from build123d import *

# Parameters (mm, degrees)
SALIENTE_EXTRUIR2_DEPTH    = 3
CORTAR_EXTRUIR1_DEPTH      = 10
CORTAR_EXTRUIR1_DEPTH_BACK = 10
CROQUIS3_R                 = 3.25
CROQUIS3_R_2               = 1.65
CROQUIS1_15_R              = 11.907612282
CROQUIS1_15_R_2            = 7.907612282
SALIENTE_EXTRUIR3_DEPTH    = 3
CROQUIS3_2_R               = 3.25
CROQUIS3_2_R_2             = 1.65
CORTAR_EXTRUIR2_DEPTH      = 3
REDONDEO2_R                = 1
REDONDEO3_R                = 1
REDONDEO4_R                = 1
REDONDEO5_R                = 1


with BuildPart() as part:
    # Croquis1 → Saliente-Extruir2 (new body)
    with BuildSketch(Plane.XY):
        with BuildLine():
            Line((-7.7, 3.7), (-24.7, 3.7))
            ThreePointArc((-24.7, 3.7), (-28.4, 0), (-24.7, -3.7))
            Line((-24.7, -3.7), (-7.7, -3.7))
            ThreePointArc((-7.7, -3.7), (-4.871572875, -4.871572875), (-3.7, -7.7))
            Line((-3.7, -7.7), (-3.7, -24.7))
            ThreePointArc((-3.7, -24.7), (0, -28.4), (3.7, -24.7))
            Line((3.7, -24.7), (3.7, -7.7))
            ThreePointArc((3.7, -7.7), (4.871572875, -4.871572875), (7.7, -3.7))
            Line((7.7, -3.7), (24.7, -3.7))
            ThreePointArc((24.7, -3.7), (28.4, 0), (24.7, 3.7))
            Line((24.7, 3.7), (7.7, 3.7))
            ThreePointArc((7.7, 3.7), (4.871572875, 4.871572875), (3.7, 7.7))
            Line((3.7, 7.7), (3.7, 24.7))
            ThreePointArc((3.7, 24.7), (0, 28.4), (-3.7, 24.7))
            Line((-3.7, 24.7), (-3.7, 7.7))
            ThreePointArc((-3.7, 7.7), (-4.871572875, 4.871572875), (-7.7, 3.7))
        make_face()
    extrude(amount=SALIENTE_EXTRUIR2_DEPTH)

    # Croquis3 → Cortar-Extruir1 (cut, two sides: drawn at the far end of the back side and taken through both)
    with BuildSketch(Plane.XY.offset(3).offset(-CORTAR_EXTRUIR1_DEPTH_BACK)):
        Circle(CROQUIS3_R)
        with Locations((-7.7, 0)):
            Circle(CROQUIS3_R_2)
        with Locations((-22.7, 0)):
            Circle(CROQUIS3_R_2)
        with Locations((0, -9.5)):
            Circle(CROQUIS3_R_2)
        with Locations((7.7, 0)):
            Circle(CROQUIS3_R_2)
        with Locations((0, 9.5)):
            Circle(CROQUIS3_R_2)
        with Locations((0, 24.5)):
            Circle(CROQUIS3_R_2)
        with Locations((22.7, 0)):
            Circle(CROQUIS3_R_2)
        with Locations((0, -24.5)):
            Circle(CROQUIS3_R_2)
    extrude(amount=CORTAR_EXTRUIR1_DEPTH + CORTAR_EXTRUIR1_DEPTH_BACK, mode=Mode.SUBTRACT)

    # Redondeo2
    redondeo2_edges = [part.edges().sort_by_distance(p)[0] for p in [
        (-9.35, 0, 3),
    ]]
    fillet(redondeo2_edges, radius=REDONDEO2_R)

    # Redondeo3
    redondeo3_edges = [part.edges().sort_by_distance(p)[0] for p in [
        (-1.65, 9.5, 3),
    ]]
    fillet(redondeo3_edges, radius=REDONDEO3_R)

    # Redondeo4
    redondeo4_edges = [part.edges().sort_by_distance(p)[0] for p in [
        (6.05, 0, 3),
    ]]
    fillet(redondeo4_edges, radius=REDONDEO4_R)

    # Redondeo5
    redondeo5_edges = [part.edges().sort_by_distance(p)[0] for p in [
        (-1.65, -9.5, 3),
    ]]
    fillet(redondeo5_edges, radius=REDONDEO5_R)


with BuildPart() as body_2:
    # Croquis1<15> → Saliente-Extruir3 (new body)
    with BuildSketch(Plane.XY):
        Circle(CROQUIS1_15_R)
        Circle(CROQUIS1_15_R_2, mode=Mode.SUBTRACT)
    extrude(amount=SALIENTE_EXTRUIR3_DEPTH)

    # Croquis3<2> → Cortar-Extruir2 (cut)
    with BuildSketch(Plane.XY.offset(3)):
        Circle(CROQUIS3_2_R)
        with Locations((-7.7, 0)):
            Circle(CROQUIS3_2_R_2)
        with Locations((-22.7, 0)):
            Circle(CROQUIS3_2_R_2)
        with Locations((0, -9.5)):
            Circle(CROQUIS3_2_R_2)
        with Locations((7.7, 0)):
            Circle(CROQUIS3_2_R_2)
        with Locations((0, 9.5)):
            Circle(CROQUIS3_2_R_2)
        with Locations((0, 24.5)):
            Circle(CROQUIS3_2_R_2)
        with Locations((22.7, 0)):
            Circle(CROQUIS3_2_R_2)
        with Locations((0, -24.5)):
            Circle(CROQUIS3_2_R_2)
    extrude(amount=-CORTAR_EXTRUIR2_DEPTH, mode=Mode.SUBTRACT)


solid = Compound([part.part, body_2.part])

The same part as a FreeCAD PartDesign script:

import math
import FreeCAD as App
import Part
import Sketcher
Q = App.Units.Quantity


def edges_at(feature, points):
    """Names of the edges that pass closest to the given points."""
    edges = feature.Shape.Edges
    near = lambda p: min(range(len(edges)), key=lambda i: edges[i].distToShape(Part.Vertex(*p))[0])
    return sorted({f"Edge{near(p) + 1}" for p in points})

doc = App.newDocument("Part")
body = doc.addObject("PartDesign::Body", "Body")

# Sketch on XY plane
sketch1 = doc.addObject("Sketcher::SketchObject", "Sketch")
body.addObject(sketch1)
sketch1.AttachmentSupport = (doc.XY_Plane, [""])
sketch1.MapMode = "FlatFace"
sketch1.addGeometry([
    Part.LineSegment(App.Vector(-7.7, 3.7, 0), App.Vector(-24.7, 3.7, 0)),  # 0
    Part.ArcOfCircle(Part.Circle(App.Vector(-24.7, 0, 0), App.Vector(0, 0, 1), 3.7), math.radians(90), math.radians(270)),  # 1
    Part.LineSegment(App.Vector(-24.7, -3.7, 0), App.Vector(-7.7, -3.7, 0)),  # 2
    Part.ArcOfCircle(Part.Circle(App.Vector(-7.7, -7.7, 0), App.Vector(0, 0, 1), 4), math.radians(0), math.radians(90)),  # 3
    Part.LineSegment(App.Vector(-3.7, -7.7, 0), App.Vector(-3.7, -24.7, 0)),  # 4
    Part.ArcOfCircle(Part.Circle(App.Vector(0, -24.7, 0), App.Vector(0, 0, 1), 3.7), math.radians(180), math.radians(360)),  # 5
    Part.LineSegment(App.Vector(3.7, -24.7, 0), App.Vector(3.7, -7.7, 0)),  # 6
    Part.ArcOfCircle(Part.Circle(App.Vector(7.7, -7.7, 0), App.Vector(0, 0, 1), 4), math.radians(90), math.radians(180)),  # 7
    Part.LineSegment(App.Vector(7.7, -3.7, 0), App.Vector(24.7, -3.7, 0)),  # 8
    Part.ArcOfCircle(Part.Circle(App.Vector(24.7, 0, 0), App.Vector(0, 0, 1), 3.7), math.radians(-90), math.radians(90)),  # 9
    Part.LineSegment(App.Vector(24.7, 3.7, 0), App.Vector(7.7, 3.7, 0)),  # 10
    Part.ArcOfCircle(Part.Circle(App.Vector(7.7, 7.7, 0), App.Vector(0, 0, 1), 4), math.radians(180), math.radians(270)),  # 11
    Part.LineSegment(App.Vector(3.7, 7.7, 0), App.Vector(3.7, 24.7, 0)),  # 12
    Part.ArcOfCircle(Part.Circle(App.Vector(0, 24.7, 0), App.Vector(0, 0, 1), 3.7), math.radians(0), math.radians(180)),  # 13
    Part.LineSegment(App.Vector(-3.7, 24.7, 0), App.Vector(-3.7, 7.7, 0)),  # 14
    Part.ArcOfCircle(Part.Circle(App.Vector(-7.7, 7.7, 0), App.Vector(0, 0, 1), 4), math.radians(-90), math.radians(0)),  # 15
], False)
sketch1.addConstraint([
    Sketcher.Constraint("Tangent", 0, 2, 1, 1),
    Sketcher.Constraint("Tangent", 1, 2, 2, 1),
    Sketcher.Constraint("Tangent", 2, 2, 3, 2),
    Sketcher.Constraint("Tangent", 3, 1, 4, 1),
    Sketcher.Constraint("Tangent", 4, 2, 5, 1),
    Sketcher.Constraint("Tangent", 5, 2, 6, 1),
    Sketcher.Constraint("Tangent", 6, 2, 7, 2),
    Sketcher.Constraint("Tangent", 7, 1, 8, 1),
    Sketcher.Constraint("Tangent", 8, 2, 9, 1),
    Sketcher.Constraint("Tangent", 9, 2, 10, 1),
    Sketcher.Constraint("Tangent", 10, 2, 11, 2),
    Sketcher.Constraint("Tangent", 11, 1, 12, 1),
    Sketcher.Constraint("Tangent", 12, 2, 13, 1),
    Sketcher.Constraint("Tangent", 13, 2, 14, 1),
    Sketcher.Constraint("Tangent", 14, 2, 15, 2),
    Sketcher.Constraint("Tangent", 15, 1, 0, 1),
    Sketcher.Constraint("Horizontal", 0),
    Sketcher.Constraint("Horizontal", 2),
    Sketcher.Constraint("Vertical", 4),
    Sketcher.Constraint("Vertical", 6),
    Sketcher.Constraint("Horizontal", 8),
    Sketcher.Constraint("Horizontal", 10),
    Sketcher.Constraint("Vertical", 12),
    Sketcher.Constraint("Vertical", 14),
    Sketcher.Constraint("Equal", 1, 5),
    Sketcher.Constraint("Equal", 3, 7),
    Sketcher.Constraint("Equal", 5, 9),
    Sketcher.Constraint("Equal", 7, 11),
    Sketcher.Constraint("Equal", 9, 13),
    Sketcher.Constraint("Equal", 11, 15),
    Sketcher.Constraint("Symmetric", 1, 3, 9, 3, -1, 1),
    Sketcher.Constraint("Symmetric", 5, 3, 13, 3, -1, 1),
    Sketcher.Constraint("Symmetric", 3, 3, 7, 3, -2),
    Sketcher.Constraint("Equal", 10, 4),
    Sketcher.Constraint("Radius", 3, Q("4 mm")),
    Sketcher.Constraint("Radius", 1, Q("3.7 mm")),
    Sketcher.Constraint("DistanceX", 0, 2, 0, 1, Q("17 mm")),
])
pad1 = doc.addObject("PartDesign::Pad", "Pad")
body.addObject(pad1)
pad1.Profile = sketch1
pad1.Length = 3

# Sketch on XY plane
sketch2 = doc.addObject("Sketcher::SketchObject", "Sketch001")
body.addObject(sketch2)
sketch2.AttachmentSupport = (doc.XY_Plane, [""])
sketch2.MapMode = "FlatFace"
sketch2.AttachmentOffset = App.Placement(App.Vector(0, 0, 3), App.Rotation())
sketch2.addGeometry([
    Part.Circle(App.Vector(0, 0, 0), App.Vector(0, 0, 1), 3.2),  # 0
    Part.Circle(App.Vector(-7.7, 0, 0), App.Vector(0, 0, 1), 1.6),  # 1
    Part.Circle(App.Vector(-22.7, 0, 0), App.Vector(0, 0, 1), 1.6),  # 2
    Part.Circle(App.Vector(0, -9.5, 0), App.Vector(0, 0, 1), 1.6),  # 3
    Part.Circle(App.Vector(7.7, 0, 0), App.Vector(0, 0, 1), 1.6),  # 4
    Part.Circle(App.Vector(0, 9.5, 0), App.Vector(0, 0, 1), 1.6),  # 5
    Part.Circle(App.Vector(0, 24.5, 0), App.Vector(0, 0, 1), 1.6),  # 6
    Part.Circle(App.Vector(22.7, 0, 0), App.Vector(0, 0, 1), 1.6),  # 7
    Part.Circle(App.Vector(0, -24.5, 0), App.Vector(0, 0, 1), 1.6),  # 8
], False)
sketch2.addConstraint([
    Sketcher.Constraint("Coincident", 0, 3, -1, 1),
    Sketcher.Constraint("Equal", 1, 2),
    Sketcher.Constraint("Equal", 2, 3),
    Sketcher.Constraint("Equal", 3, 4),
    Sketcher.Constraint("Equal", 4, 5),
    Sketcher.Constraint("Equal", 5, 6),
    Sketcher.Constraint("Equal", 6, 7),
    Sketcher.Constraint("Equal", 7, 8),
    Sketcher.Constraint("Symmetric", 1, 3, 4, 3, -1, 1),
    Sketcher.Constraint("Symmetric", 3, 3, 5, 3, -1, 1),
    Sketcher.Constraint("Symmetric", 2, 3, 7, 3, -1, 1),
    Sketcher.Constraint("Symmetric", 6, 3, 8, 3, -1, 1),
    Sketcher.Constraint("PointOnObject", 1, 3, -1),
    Sketcher.Constraint("PointOnObject", 2, 3, -1),
    Sketcher.Constraint("PointOnObject", 3, 3, -2),
    Sketcher.Constraint("PointOnObject", 6, 3, -2),
    Sketcher.Constraint("Diameter", 0, Q("6.5 mm")),
    Sketcher.Constraint("Diameter", 1, Q("3.3 mm")),
    Sketcher.Constraint("DistanceX", 2, 3, 1, 3, Q("15 mm")),
    Sketcher.Constraint("DistanceY", 3, 3, 5, 3, Q("19 mm")),
    Sketcher.Constraint("DistanceY", 5, 3, 6, 3, Q("15 mm")),
    Sketcher.Constraint("DistanceX", 1, 3, -1, 1, Q("7.7 mm")),
])
pocket1 = doc.addObject("PartDesign::Pocket", "Pocket")
body.addObject(pocket1)
pocket1.Profile = sketch2
pocket1.Type = "ThroughAll"
pocket1.Midplane = True
doc.recompute()

fillet = doc.addObject("PartDesign::Fillet", "Fillet")
body.addObject(fillet)
fillet.Base = (pocket1, edges_at(pocket1, [(-9.35, 0, 3)]))
fillet.Radius = 1
doc.recompute()

fillet2 = doc.addObject("PartDesign::Fillet", "Fillet001")
body.addObject(fillet2)
fillet2.Base = (fillet, edges_at(fillet, [(-1.65, 9.5, 3)]))
fillet2.Radius = 1
doc.recompute()

fillet3 = doc.addObject("PartDesign::Fillet", "Fillet002")
body.addObject(fillet3)
fillet3.Base = (fillet2, edges_at(fillet2, [(6.05, 0, 3)]))
fillet3.Radius = 1
doc.recompute()

fillet4 = doc.addObject("PartDesign::Fillet", "Fillet003")
body.addObject(fillet4)
fillet4.Base = (fillet3, edges_at(fillet3, [(-1.65, -9.5, 3)]))
fillet4.Radius = 1
body2 = doc.addObject("PartDesign::Body", "Body001")

# Sketch on XY plane
sketch3 = doc.addObject("Sketcher::SketchObject", "Sketch002")
body2.addObject(sketch3)
sketch3.AttachmentSupport = (doc.getObject("XY_Plane001"), [""])
sketch3.MapMode = "FlatFace"
sketch3.addGeometry([
    Part.Circle(App.Vector(0, 0, 0), App.Vector(0, 0, 1), 12),
    Part.Circle(App.Vector(0, 0, 0), App.Vector(0, 0, 1), 8),
], False)
sketch3.addConstraint([
    Sketcher.Constraint("Coincident", 0, 3, -1, 1),
    Sketcher.Constraint("Coincident", 1, 3, -1, 1),
    Sketcher.Constraint("Diameter", 0, Q("23.815225 mm")),
    Sketcher.Constraint("Diameter", 1, Q("15.815225 mm")),
])
pad2 = doc.addObject("PartDesign::Pad", "Pad001")
body2.addObject(pad2)
pad2.Profile = sketch3
pad2.Length = 3

# Sketch on XY plane
sketch4 = doc.addObject("Sketcher::SketchObject", "Sketch003")
body2.addObject(sketch4)
sketch4.AttachmentSupport = (doc.getObject("XY_Plane001"), [""])
sketch4.MapMode = "FlatFace"
sketch4.AttachmentOffset = App.Placement(App.Vector(0, 0, 3), App.Rotation())
sketch4.addGeometry([
    Part.Circle(App.Vector(0, 0, 0), App.Vector(0, 0, 1), 3.2),  # 0
    Part.Circle(App.Vector(-7.7, 0, 0), App.Vector(0, 0, 1), 1.6),  # 1
    Part.Circle(App.Vector(-22.7, 0, 0), App.Vector(0, 0, 1), 1.6),  # 2
    Part.Circle(App.Vector(0, -9.5, 0), App.Vector(0, 0, 1), 1.6),  # 3
    Part.Circle(App.Vector(7.7, 0, 0), App.Vector(0, 0, 1), 1.6),  # 4
    Part.Circle(App.Vector(0, 9.5, 0), App.Vector(0, 0, 1), 1.6),  # 5
    Part.Circle(App.Vector(0, 24.5, 0), App.Vector(0, 0, 1), 1.6),  # 6
    Part.Circle(App.Vector(22.7, 0, 0), App.Vector(0, 0, 1), 1.6),  # 7
    Part.Circle(App.Vector(0, -24.5, 0), App.Vector(0, 0, 1), 1.6),  # 8
], False)
sketch4.addConstraint([
    Sketcher.Constraint("Coincident", 0, 3, -1, 1),
    Sketcher.Constraint("Equal", 1, 2),
    Sketcher.Constraint("Equal", 2, 3),
    Sketcher.Constraint("Equal", 3, 4),
    Sketcher.Constraint("Equal", 4, 5),
    Sketcher.Constraint("Equal", 5, 6),
    Sketcher.Constraint("Equal", 6, 7),
    Sketcher.Constraint("Equal", 7, 8),
    Sketcher.Constraint("Symmetric", 1, 3, 4, 3, -1, 1),
    Sketcher.Constraint("Symmetric", 3, 3, 5, 3, -1, 1),
    Sketcher.Constraint("Symmetric", 2, 3, 7, 3, -1, 1),
    Sketcher.Constraint("Symmetric", 6, 3, 8, 3, -1, 1),
    Sketcher.Constraint("PointOnObject", 1, 3, -1),
    Sketcher.Constraint("PointOnObject", 2, 3, -1),
    Sketcher.Constraint("PointOnObject", 3, 3, -2),
    Sketcher.Constraint("PointOnObject", 6, 3, -2),
    Sketcher.Constraint("Diameter", 0, Q("6.5 mm")),
    Sketcher.Constraint("Diameter", 1, Q("3.3 mm")),
    Sketcher.Constraint("DistanceX", 2, 3, 1, 3, Q("15 mm")),
    Sketcher.Constraint("DistanceY", 3, 3, 5, 3, Q("19 mm")),
    Sketcher.Constraint("DistanceY", 5, 3, 6, 3, Q("15 mm")),
    Sketcher.Constraint("DistanceX", 1, 3, -1, 1, Q("7.7 mm")),
])
pocket2 = doc.addObject("PartDesign::Pocket", "Pocket001")
body2.addObject(pocket2)
pocket2.Profile = sketch4
pocket2.Length = 3

doc.recompute()
